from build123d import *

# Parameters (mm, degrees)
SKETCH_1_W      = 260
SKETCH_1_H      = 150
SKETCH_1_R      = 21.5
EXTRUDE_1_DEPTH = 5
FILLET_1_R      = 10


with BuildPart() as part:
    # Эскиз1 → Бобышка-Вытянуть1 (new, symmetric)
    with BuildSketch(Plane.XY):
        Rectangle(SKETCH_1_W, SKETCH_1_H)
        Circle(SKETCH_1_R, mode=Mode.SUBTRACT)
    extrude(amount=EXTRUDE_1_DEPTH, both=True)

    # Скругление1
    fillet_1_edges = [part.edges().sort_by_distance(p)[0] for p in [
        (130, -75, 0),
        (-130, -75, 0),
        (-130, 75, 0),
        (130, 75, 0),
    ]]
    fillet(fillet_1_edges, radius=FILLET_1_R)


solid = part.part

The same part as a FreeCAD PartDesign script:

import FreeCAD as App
import Part
import Sketcher
from FreeCAD import Vector
Q = App.Units.Quantity


def edges_at(feature, points):
    """Names of the edges that pass closest to the given points."""
    edges = feature.Shape.Edges
    near = lambda p: min(range(len(edges)), key=lambda i: edges[i].distToShape(Part.Vertex(*p))[0])
    return sorted({f"Edge{near(p) + 1}" for p in points})


def add_polygon(sketch, points):
    """Adds a closed chain of lines whose ends are joined by coincident constraints."""
    first, n = sketch.GeometryCount, len(points)
    for a, b in zip(points, points[1:] + points[:1]):
        sketch.addGeometry(Part.LineSegment(App.Vector(*a, 0), App.Vector(*b, 0)), False)
    for i in range(n):
        sketch.addConstraint(Sketcher.Constraint("Coincident", first + i, 2, first + (i + 1) % n, 1))

doc = App.newDocument("Part")
body = doc.addObject("PartDesign::Body", "Body")

# Sketch on XY plane
sketch1 = body.newObject("Sketcher::SketchObject", "Sketch")
sketch1.AttachmentSupport = (doc.getObject("XY_Plane"), [""])
sketch1.MapMode = "FlatFace"
add_polygon(sketch1, [(-130, 75), (-130, -75), (130, -75), (130, 75)])  # lines 0-3
sketch1.addGeometry(Part.Circle(Vector(0, 0, 0), Vector(0, 0, 1), 22), False)  # 4
sketch1.addConstraint(Sketcher.Constraint("Vertical", 0))
sketch1.addConstraint(Sketcher.Constraint("Horizontal", 1))
sketch1.addConstraint(Sketcher.Constraint("Vertical", 2))
sketch1.addConstraint(Sketcher.Constraint("Horizontal", 3))
sketch1.addConstraint(Sketcher.Constraint("Coincident", 4, 3, -1, 1))
sketch1.addConstraint(Sketcher.Constraint("Symmetric", 0, 2, 2, 2, -1, 1))
sketch1.addConstraint(Sketcher.Constraint("Diameter", 4, Q("43 mm")))
sketch1.addConstraint(Sketcher.Constraint("DistanceX", 1, 1, 1, 2, Q("260 mm")))
sketch1.addConstraint(Sketcher.Constraint("DistanceY", 0, 2, 0, 1, Q("150 mm")))
pad1 = body.newObject("PartDesign::Pad", "Pad")
pad1.Profile = sketch1
pad1.Length = 10
pad1.Midplane = True
doc.recompute()

fillet = body.newObject("PartDesign::Fillet", "Fillet")
fillet.Base = (pad1, edges_at(pad1, [
    (130, -75, 0),
    (-130, -75, 0),
    (-130, 75, 0),
    (130, 75, 0),
]))
fillet.Radius = 10

doc.recompute()
